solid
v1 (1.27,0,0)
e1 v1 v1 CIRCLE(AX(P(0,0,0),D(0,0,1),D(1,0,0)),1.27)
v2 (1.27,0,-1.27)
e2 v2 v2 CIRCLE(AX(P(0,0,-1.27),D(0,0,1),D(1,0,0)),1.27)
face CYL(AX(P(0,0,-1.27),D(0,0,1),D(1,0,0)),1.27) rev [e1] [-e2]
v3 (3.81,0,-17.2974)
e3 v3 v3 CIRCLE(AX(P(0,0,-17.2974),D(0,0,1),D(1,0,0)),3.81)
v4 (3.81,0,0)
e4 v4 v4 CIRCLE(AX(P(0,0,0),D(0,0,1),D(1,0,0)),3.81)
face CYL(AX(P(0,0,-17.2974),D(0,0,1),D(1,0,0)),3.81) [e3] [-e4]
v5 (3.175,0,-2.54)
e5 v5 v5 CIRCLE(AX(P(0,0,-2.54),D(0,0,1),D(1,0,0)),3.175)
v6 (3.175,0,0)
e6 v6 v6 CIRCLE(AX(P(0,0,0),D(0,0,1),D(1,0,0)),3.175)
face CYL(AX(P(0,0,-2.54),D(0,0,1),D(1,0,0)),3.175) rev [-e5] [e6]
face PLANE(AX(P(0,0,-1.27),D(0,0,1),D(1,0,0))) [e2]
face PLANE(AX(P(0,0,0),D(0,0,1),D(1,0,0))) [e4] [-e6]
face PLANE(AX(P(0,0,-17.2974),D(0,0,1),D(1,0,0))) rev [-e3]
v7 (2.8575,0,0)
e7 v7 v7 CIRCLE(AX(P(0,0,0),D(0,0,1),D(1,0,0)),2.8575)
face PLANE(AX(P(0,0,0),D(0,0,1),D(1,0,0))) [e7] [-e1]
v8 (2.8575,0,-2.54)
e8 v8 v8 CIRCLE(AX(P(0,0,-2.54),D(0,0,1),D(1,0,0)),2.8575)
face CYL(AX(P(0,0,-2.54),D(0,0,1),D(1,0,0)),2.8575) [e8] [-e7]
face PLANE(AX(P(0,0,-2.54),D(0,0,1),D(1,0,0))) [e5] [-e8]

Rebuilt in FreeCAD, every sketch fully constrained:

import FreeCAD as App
import Part
import Sketcher
Q = App.Units.Quantity

doc = App.newDocument("Part")
body = doc.addObject("PartDesign::Body", "Body")

# Sketch on XY plane
sketch1 = body.newObject("Sketcher::SketchObject", "Sketch")
sketch1.AttachmentSupport = (doc.getObject("XY_Plane"), [""])
sketch1.MapMode = "FlatFace"
sketch1.addGeometry(Part.Circle(App.Vector(0, 0, 0), App.Vector(0, 0, 1), 3.8), False)
sketch1.addConstraint(Sketcher.Constraint("Coincident", 0, 3, -1, 1))
sketch1.addConstraint(Sketcher.Constraint("Diameter", 0, Q("0.3 in")))
pad1 = body.newObject("PartDesign::Pad", "Pad")
pad1.Profile = sketch1
pad1.Length = Q("0.681 in")
pad1.Reversed = True

# Sketch on XY plane
sketch2 = body.newObject("Sketcher::SketchObject", "Sketch001")
sketch2.AttachmentSupport = (doc.getObject("XY_Plane"), [""])
sketch2.MapMode = "FlatFace"
sketch2.addGeometry(Part.Circle(App.Vector(0, 0, 0), App.Vector(0, 0, 1), 3.2), False)
sketch2.addGeometry(Part.Circle(App.Vector(0, 0, 0), App.Vector(0, 0, 1), 2.9), False)
sketch2.addConstraint(Sketcher.Constraint("Coincident", 0, 3, -1, 1))
sketch2.addConstraint(Sketcher.Constraint("Coincident", 1, 3, -1, 1))
sketch2.addConstraint(Sketcher.Constraint("Diameter", 0, Q("0.25 in")))
sketch2.addConstraint(Sketcher.Constraint("Diameter", 1, Q("0.225 in")))
pocket1 = body.newObject("PartDesign::Pocket", "Pocket")
pocket1.Profile = sketch2
pocket1.Length = Q("0.1 in")

# Sketch on XY plane
sketch3 = body.newObject("Sketcher::SketchObject", "Sketch002")
sketch3.AttachmentSupport = (doc.getObject("XY_Plane"), [""])
sketch3.MapMode = "FlatFace"
sketch3.addGeometry(Part.Circle(App.Vector(0, 0, 0), App.Vector(0, 0, 1), 1.3), False)
sketch3.addConstraint(Sketcher.Constraint("Coincident", 0, 3, -1, 1))
sketch3.addConstraint(Sketcher.Constraint("Diameter", 0, Q("0.1 in")))
pocket2 = body.newObject("PartDesign::Pocket", "Pocket001")
pocket2.Profile = sketch3
pocket2.Length = Q("0.05 in")

doc.recompute()
